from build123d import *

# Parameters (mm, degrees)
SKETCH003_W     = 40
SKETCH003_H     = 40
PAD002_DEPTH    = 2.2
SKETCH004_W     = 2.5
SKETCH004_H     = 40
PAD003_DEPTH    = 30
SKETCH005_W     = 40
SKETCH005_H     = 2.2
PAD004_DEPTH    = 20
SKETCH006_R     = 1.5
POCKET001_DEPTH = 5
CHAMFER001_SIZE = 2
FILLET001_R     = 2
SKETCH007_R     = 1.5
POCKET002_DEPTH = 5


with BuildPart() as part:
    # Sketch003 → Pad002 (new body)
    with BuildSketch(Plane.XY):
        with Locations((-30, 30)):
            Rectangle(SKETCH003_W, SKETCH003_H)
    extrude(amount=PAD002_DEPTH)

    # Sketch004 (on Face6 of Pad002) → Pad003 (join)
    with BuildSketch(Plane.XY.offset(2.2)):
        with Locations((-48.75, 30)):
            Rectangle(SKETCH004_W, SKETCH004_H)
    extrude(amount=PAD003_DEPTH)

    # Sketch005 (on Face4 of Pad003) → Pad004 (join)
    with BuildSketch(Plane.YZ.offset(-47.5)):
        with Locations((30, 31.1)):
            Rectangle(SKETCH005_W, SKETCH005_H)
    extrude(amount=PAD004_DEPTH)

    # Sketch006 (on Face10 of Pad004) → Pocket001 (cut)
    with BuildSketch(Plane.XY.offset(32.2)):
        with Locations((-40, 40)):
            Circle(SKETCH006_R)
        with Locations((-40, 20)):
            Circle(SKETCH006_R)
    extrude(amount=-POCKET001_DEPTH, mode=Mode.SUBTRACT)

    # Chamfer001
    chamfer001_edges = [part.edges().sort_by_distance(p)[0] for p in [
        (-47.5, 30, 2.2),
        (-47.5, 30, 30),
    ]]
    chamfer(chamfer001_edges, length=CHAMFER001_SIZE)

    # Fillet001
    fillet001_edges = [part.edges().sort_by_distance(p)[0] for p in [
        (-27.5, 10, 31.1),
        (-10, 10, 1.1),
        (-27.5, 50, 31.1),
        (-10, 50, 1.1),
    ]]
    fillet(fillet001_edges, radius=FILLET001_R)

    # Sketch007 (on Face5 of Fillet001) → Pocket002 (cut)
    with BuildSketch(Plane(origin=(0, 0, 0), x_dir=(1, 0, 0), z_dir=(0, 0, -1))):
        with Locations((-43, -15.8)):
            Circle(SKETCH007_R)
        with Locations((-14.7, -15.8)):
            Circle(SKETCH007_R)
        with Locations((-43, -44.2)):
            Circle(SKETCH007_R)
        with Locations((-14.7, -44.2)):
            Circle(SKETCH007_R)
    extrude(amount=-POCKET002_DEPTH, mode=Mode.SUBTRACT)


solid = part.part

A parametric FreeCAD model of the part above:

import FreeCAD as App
import Part
import Sketcher

V = App.Vector


def edges_at(feature, points):
    """Names of the edges that pass closest to the given points."""
    edges = feature.Shape.Edges
    near = lambda p: min(range(len(edges)), key=lambda i: edges[i].distToShape(Part.Vertex(*p))[0])
    return sorted({f"Edge{near(p) + 1}" for p in points})


def add_polygon(sketch, points):
    """Adds a closed chain of lines whose ends are joined by coincident constraints."""
    first, n = sketch.GeometryCount, len(points)
    for a, b in zip(points, points[1:] + points[:1]):
        sketch.addGeometry(Part.LineSegment(App.Vector(*a, 0), App.Vector(*b, 0)), False)
    for i in range(n):
        sketch.addConstraint(Sketcher.Constraint("Coincident", first + i, 2, first + (i + 1) % n, 1))

doc = App.newDocument("Part")
body = doc.addObject("PartDesign::Body", "Body")

# Sketch on XY plane
sketch1 = body.newObject("Sketcher::SketchObject", "Sketch")
sketch1.AttachmentSupport = (doc.getObject("XY_Plane"), [""])
sketch1.MapMode = "FlatFace"
add_polygon(sketch1, [(-50, 50), (-50, 10), (-10, 10), (-10, 50)])  # lines 0-3
sketch1.addConstraint([
    Sketcher.Constraint("Vertical", 0),
    Sketcher.Constraint("Horizontal", 1),
    Sketcher.Constraint("Vertical", 2),
    Sketcher.Constraint("Horizontal", 3),
    Sketcher.Constraint("Equal", 3, 0),
    Sketcher.Constraint("DistanceX", 1, 1, 1, 2, 40.0),
    Sketcher.Constraint("DistanceX", 0, 2, -1, 1, 50.0),
    Sketcher.Constraint("DistanceY", -1, 1, 0, 2, 10.0),
])
pad1 = body.newObject("PartDesign::Pad", "Pad")
pad1.Profile = sketch1
pad1.Length = 2.2

# Sketch on XY plane
sketch2 = body.newObject("Sketcher::SketchObject", "Sketch001")
sketch2.AttachmentSupport = (doc.getObject("XY_Plane"), [""])
sketch2.MapMode = "FlatFace"
sketch2.AttachmentOffset = App.Placement(V(0, 0, 2.2), App.Rotation())
add_polygon(sketch2, [(-50, 50), (-50, 10), (-47.5, 10), (-47.5, 50)])  # lines 0-3
sketch2.addConstraint([
    Sketcher.Constraint("Vertical", 0),
    Sketcher.Constraint("Horizontal", 1),
    Sketcher.Constraint("Vertical", 2),
    Sketcher.Constraint("Horizontal", 3),
    Sketcher.Constraint("DistanceY", 0, 2, 0, 1, 40.0),
    Sketcher.Constraint("DistanceX", 1, 1, 1, 2, 2.5),
    Sketcher.Constraint("DistanceX", 0, 2, -1, 1, 50.0),
    Sketcher.Constraint("DistanceY", -1, 1, 0, 2, 10.0),
])
pad2 = body.newObject("PartDesign::Pad", "Pad001")
pad2.Profile = sketch2
pad2.Length = 30

# Sketch on YZ plane
sketch3 = body.newObject("Sketcher::SketchObject", "Sketch002")
sketch3.AttachmentSupport = (doc.getObject("YZ_Plane"), [""])
sketch3.MapMode = "FlatFace"
sketch3.AttachmentOffset = App.Placement(V(0, 0, -47.5), App.Rotation())
add_polygon(sketch3, [(10, 32.2), (10, 30), (50, 30), (50, 32.2)])  # lines 0-3
sketch3.addConstraint([
    Sketcher.Constraint("Vertical", 0),
    Sketcher.Constraint("Horizontal", 1),
    Sketcher.Constraint("Vertical", 2),
    Sketcher.Constraint("Horizontal", 3),
    Sketcher.Constraint("DistanceX", 1, 1, 1, 2, 40.0),
    Sketcher.Constraint("DistanceY", 0, 2, 0, 1, 2.2),
    Sketcher.Constraint("DistanceX", -1, 1, 0, 2, 10.0),
    Sketcher.Constraint("DistanceY", -1, 1, 0, 2, 30.0),
])
pad3 = body.newObject("PartDesign::Pad", "Pad002")
pad3.Profile = sketch3
pad3.Length = 20

# Sketch on XY plane
sketch4 = body.newObject("Sketcher::SketchObject", "Sketch003")
sketch4.AttachmentSupport = (doc.getObject("XY_Plane"), [""])
sketch4.MapMode = "FlatFace"
sketch4.AttachmentOffset = App.Placement(V(0, 0, 32.2), App.Rotation())
sketch4.addGeometry([
    Part.Circle(V(-40, 40, 0), V(0, 0, 1), 1.5),
    Part.Circle(V(-40, 20, 0), V(0, 0, 1), 1.5),
], False)
sketch4.addConstraint([
    Sketcher.Constraint("Equal", 0, 1),
    Sketcher.Constraint("Vertical", 0, 3, 1, 3),
    Sketcher.Constraint("Diameter", 0, 3.0),
    Sketcher.Constraint("DistanceX", 0, 3, -1, 1, 40.0),
    Sketcher.Constraint("DistanceY", -1, 1, 0, 3, 40.0),
    Sketcher.Constraint("DistanceY", -1, 1, 1, 3, 20.0),
])
pocket1 = body.newObject("PartDesign::Pocket", "Pocket")
pocket1.Profile = sketch4
pocket1.Length = 5
doc.recompute()

chamfer = body.newObject("PartDesign::Chamfer", "Chamfer")
chamfer.Base = (pocket1, edges_at(pocket1, [(-47.5, 30, 2.2), (-47.5, 30, 30)]))
chamfer.Size = 2
doc.recompute()

fillet = body.newObject("PartDesign::Fillet", "Fillet")
fillet.Base = (chamfer, edges_at(chamfer, [
    (-27.5, 10, 31.1),
    (-10, 10, 1.1),
    (-27.5, 50, 31.1),
    (-10, 50, 1.1),
]))
fillet.Radius = 2

# Sketch on XY plane
sketch5 = body.newObject("Sketcher::SketchObject", "Sketch004")
sketch5.AttachmentSupport = (doc.getObject("XY_Plane"), [""])
sketch5.MapMode = "FlatFace"
sketch5.addGeometry([
    Part.Circle(V(-43, 15.8, 0), V(0, 0, 1), 1.5),
    Part.Circle(V(-14.7, 15.8, 0), V(0, 0, 1), 1.5),
    Part.Circle(V(-43, 44.2, 0), V(0, 0, 1), 1.5),
    Part.Circle(V(-14.7, 44.2, 0), V(0, 0, 1), 1.5),
], False)
sketch5.addConstraint([
    Sketcher.Constraint("Equal", 0, 1),
    Sketcher.Constraint("Equal", 1, 2),
    Sketcher.Constraint("Equal", 2, 3),
    Sketcher.Constraint("Horizontal", 0, 3, 1, 3),
    Sketcher.Constraint("Horizontal", 2, 3, 3, 3),
    Sketcher.Constraint("Vertical", 0, 3, 2, 3),
    Sketcher.Constraint("Vertical", 1, 3, 3, 3),
    Sketcher.Constraint("Diameter", 0, 3.0),
    Sketcher.Constraint("DistanceX", 0, 3, -1, 1, 43.0),
    Sketcher.Constraint("DistanceY", -1, 1, 0, 3, 15.8),
    Sketcher.Constraint("DistanceX", 1, 3, -1, 1, 14.7),
    Sketcher.Constraint("DistanceY", -1, 1, 2, 3, 44.2),
])
pocket2 = body.newObject("PartDesign::Pocket", "Pocket001")
pocket2.Profile = sketch5
pocket2.Length = 5
pocket2.Reversed = True

doc.recompute()
